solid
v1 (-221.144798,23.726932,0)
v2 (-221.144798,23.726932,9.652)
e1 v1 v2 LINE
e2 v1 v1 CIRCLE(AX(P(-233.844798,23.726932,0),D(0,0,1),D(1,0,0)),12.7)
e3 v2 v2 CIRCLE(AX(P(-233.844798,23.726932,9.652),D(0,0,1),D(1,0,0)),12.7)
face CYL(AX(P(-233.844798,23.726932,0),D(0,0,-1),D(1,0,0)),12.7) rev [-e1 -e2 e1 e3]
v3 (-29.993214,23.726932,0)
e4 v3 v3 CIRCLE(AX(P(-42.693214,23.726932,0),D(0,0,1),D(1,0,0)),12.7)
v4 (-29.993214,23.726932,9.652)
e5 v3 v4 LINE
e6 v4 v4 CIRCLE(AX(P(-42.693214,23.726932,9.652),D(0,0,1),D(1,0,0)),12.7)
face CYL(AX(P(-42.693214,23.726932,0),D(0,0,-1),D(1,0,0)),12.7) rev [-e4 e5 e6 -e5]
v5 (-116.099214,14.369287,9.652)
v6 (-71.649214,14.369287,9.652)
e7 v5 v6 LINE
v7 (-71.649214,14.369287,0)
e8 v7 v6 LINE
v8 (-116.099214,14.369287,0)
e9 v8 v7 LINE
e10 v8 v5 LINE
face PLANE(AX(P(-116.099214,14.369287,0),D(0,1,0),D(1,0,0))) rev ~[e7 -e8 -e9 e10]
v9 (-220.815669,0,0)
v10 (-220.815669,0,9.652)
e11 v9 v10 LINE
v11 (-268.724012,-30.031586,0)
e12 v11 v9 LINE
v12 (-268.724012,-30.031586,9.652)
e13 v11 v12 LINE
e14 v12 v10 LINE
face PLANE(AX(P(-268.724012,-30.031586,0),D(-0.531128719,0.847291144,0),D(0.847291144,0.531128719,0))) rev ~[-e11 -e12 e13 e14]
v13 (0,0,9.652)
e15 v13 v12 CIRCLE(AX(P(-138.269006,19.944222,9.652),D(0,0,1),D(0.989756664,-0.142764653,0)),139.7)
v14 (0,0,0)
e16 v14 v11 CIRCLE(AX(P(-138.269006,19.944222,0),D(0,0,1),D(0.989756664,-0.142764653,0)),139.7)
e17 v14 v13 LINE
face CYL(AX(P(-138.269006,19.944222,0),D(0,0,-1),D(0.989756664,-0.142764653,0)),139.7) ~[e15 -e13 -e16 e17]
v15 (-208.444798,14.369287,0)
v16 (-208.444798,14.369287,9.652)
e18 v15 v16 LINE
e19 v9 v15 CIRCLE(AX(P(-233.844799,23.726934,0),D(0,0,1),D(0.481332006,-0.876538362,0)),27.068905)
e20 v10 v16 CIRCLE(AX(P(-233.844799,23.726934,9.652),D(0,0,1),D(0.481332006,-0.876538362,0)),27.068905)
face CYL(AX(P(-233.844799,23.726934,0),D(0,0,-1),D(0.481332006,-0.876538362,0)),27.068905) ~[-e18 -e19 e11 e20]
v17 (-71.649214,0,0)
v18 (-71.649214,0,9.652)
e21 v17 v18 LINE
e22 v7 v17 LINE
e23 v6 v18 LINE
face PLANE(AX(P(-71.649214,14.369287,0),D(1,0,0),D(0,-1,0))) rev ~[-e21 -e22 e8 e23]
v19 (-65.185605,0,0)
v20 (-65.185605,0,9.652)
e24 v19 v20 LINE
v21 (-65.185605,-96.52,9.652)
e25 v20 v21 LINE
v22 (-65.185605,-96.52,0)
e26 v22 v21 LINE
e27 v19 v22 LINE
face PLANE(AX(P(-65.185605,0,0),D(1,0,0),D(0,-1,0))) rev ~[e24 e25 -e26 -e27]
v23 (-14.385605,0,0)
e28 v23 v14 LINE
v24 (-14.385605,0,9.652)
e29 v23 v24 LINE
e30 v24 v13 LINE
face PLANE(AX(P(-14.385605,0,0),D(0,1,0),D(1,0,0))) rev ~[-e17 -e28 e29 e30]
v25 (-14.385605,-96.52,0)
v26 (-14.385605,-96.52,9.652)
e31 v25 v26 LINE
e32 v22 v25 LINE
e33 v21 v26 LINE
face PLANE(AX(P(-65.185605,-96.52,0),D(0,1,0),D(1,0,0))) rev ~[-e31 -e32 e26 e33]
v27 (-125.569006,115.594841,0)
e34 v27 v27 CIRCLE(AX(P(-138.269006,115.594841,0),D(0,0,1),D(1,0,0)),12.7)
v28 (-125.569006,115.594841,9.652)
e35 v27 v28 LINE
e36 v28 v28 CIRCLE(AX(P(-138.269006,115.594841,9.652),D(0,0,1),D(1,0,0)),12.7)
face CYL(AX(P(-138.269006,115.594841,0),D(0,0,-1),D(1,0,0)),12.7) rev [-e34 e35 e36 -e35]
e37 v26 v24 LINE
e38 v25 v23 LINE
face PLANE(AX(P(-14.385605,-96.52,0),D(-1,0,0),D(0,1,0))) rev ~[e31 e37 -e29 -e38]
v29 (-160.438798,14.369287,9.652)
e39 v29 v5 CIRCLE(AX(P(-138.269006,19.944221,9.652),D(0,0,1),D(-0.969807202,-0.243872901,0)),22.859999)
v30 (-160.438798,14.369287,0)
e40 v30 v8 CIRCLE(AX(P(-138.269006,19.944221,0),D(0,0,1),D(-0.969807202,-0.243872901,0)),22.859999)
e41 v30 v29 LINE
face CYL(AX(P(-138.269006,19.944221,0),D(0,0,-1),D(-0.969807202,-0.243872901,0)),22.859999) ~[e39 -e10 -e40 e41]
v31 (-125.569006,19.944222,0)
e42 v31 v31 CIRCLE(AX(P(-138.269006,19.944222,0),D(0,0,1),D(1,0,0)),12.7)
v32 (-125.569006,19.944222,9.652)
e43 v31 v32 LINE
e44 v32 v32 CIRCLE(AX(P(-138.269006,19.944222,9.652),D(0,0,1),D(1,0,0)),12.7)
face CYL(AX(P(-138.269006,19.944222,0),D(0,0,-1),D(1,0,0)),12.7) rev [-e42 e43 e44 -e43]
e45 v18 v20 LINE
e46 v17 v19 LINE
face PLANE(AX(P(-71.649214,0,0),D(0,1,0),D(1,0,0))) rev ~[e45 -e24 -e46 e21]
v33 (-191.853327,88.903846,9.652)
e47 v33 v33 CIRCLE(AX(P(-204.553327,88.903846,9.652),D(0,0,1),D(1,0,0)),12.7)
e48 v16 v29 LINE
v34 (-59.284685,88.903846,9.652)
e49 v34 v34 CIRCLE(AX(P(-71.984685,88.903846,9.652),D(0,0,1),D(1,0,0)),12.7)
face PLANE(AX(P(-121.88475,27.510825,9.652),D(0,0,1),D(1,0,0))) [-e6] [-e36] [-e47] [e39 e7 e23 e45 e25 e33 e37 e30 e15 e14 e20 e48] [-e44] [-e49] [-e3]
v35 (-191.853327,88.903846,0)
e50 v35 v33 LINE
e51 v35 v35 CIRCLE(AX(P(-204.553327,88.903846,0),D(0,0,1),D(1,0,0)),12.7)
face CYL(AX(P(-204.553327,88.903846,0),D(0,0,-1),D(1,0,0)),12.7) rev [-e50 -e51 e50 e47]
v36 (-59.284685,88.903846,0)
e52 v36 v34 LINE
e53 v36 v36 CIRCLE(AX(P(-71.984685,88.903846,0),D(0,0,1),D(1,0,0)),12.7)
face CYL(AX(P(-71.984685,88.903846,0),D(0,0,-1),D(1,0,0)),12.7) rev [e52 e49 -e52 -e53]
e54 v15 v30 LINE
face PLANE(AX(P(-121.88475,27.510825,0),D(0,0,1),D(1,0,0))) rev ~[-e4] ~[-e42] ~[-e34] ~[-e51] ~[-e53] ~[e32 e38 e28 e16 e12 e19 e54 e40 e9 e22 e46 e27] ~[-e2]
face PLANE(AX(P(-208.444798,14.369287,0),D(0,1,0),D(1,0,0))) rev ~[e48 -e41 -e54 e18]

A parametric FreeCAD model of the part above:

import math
import FreeCAD as App
import Part
import Sketcher
from FreeCAD import Vector
Q = App.Units.Quantity

doc = App.newDocument("Part")
body = doc.addObject("PartDesign::Body", "Body")

sketch1 = doc.addObject("Sketcher::SketchObject", "Sketch")
body.addObject(sketch1)
sketch1.AttachmentSupport = (doc.XY_Plane, [""])
sketch1.MapMode = "FlatFace"
sketch1.addGeometry(Part.LineSegment(Vector(-71.649214, 0, 0), Vector(-65.185605, 0, 0)), False)
sketch1.addGeometry(Part.LineSegment(Vector(-65.185605, 0, 0), Vector(-65.185605, -96.52, 0)), False)
sketch1.addGeometry(Part.LineSegment(Vector(-65.185605, -96.52, 0), Vector(-14.385605, -96.52, 0)), False)
sketch1.addGeometry(Part.LineSegment(Vector(-14.385605, -96.52, 0), Vector(-14.385605, 0, 0)), False)
sketch1.addGeometry(Part.LineSegment(Vector(-14.385605, 0, 0), Vector(0, 0, 0)), False)
sketch1.addGeometry(Part.ArcOfCircle(Part.Circle(Vector(-138.269006, 19.944222, 0), Vector(0, 0, 1), 139.7), math.radians(-8.207857), math.radians(200.96126)), False)
sketch1.addGeometry(Part.LineSegment(Vector(-268.724012, -30.031586, 0), Vector(-220.815669, 0, 0)), False)
sketch1.addGeometry(Part.ArcOfCircle(Part.Circle(Vector(-233.844799, 23.726934, 0), Vector(0, 0, 1), 27.068905), math.radians(-61.227566), math.radians(-20.224366)), False)
sketch1.addGeometry(Part.LineSegment(Vector(-208.444798, 14.369287, 0), Vector(-160.438798, 14.369287, 0)), False)
sketch1.addGeometry(Part.ArcOfCircle(Part.Circle(Vector(-138.269006, 19.944221, 0), Vector(0, 0, 1), 22.859999), math.radians(-165.884765), math.radians(-14.115235)), False)
sketch1.addGeometry(Part.LineSegment(Vector(-116.099214, 14.369287, 0), Vector(-71.649214, 14.369287, 0)), False)
sketch1.addGeometry(Part.LineSegment(Vector(-71.649214, 14.369287, 0), Vector(-71.649214, 0, 0)), False)
sketch1.addGeometry(Part.Circle(Vector(-233.844798, 23.726932, 0), Vector(0, 0, 1), 12.7), False)
sketch1.addGeometry(Part.Circle(Vector(-138.269006, 19.944222, 0), Vector(0, 0, 1), 12.7), False)
sketch1.addGeometry(Part.Circle(Vector(-42.693214, 23.726932, 0), Vector(0, 0, 1), 12.7), False)
sketch1.addGeometry(Part.Circle(Vector(-204.553327, 88.903846, 0), Vector(0, 0, 1), 12.7), False)
sketch1.addGeometry(Part.Circle(Vector(-71.984685, 88.903846, 0), Vector(0, 0, 1), 12.7), False)
sketch1.addGeometry(Part.Circle(Vector(-138.269006, 115.594841, 0), Vector(0, 0, 1), 12.7), False)
sketch1.addConstraint(Sketcher.Constraint("Coincident", 0, 2, 1, 1))
sketch1.addConstraint(Sketcher.Constraint("Coincident", 1, 2, 2, 1))
sketch1.addConstraint(Sketcher.Constraint("Coincident", 2, 2, 3, 1))
sketch1.addConstraint(Sketcher.Constraint("Coincident", 3, 2, 4, 1))
sketch1.addConstraint(Sketcher.Constraint("Coincident", 4, 2, 5, 1))
sketch1.addConstraint(Sketcher.Constraint("Coincident", 5, 2, 6, 1))
sketch1.addConstraint(Sketcher.Constraint("Coincident", 6, 2, 7, 1))
sketch1.addConstraint(Sketcher.Constraint("Coincident", 7, 2, 8, 1))
sketch1.addConstraint(Sketcher.Constraint("Coincident", 8, 2, 9, 1))
sketch1.addConstraint(Sketcher.Constraint("Coincident", 9, 2, 10, 1))
sketch1.addConstraint(Sketcher.Constraint("Coincident", 10, 2, 11, 1))
sketch1.addConstraint(Sketcher.Constraint("Coincident", 11, 2, 0, 1))
sketch1.addConstraint(Sketcher.Constraint("Horizontal", 0))
sketch1.addConstraint(Sketcher.Constraint("Vertical", 1))
sketch1.addConstraint(Sketcher.Constraint("Horizontal", 2))
sketch1.addConstraint(Sketcher.Constraint("Vertical", 3))
sketch1.addConstraint(Sketcher.Constraint("Horizontal", 4))
sketch1.addConstraint(Sketcher.Constraint("Horizontal", 8))
sketch1.addConstraint(Sketcher.Constraint("Horizontal", 10))
sketch1.addConstraint(Sketcher.Constraint("Vertical", 11))
sketch1.addConstraint(Sketcher.Constraint("Coincident", 4, 2, -1, 1))
sketch1.addConstraint(Sketcher.Constraint("Coincident", 9, 3, 5, 3))
sketch1.addConstraint(Sketcher.Constraint("Coincident", 12, 3, 7, 3))
sketch1.addConstraint(Sketcher.Constraint("Coincident", 13, 3, 5, 3))
sketch1.addConstraint(Sketcher.Constraint("Equal", 12, 13))
sketch1.addConstraint(Sketcher.Constraint("Equal", 13, 14))
sketch1.addConstraint(Sketcher.Constraint("Equal", 14, 15))
sketch1.addConstraint(Sketcher.Constraint("Equal", 15, 16))
sketch1.addConstraint(Sketcher.Constraint("Equal", 16, 17))
sketch1.addConstraint(Sketcher.Constraint("PointOnObject", 0, 2, -1))
sketch1.addConstraint(Sketcher.Constraint("PointOnObject", 6, 2, -1))
sketch1.addConstraint(Sketcher.Constraint("Horizontal", 12, 3, 14, 3))
sketch1.addConstraint(Sketcher.Constraint("Horizontal", 15, 3, 16, 3))
sketch1.addConstraint(Sketcher.Constraint("Horizontal", 8, 2, 9, 2))
sketch1.addConstraint(Sketcher.Constraint("Vertical", 13, 3, 17, 3))
sketch1.addConstraint(Sketcher.Constraint("Diameter", 12, Q("1 in")))
sketch1.addConstraint(Sketcher.Constraint("Radius", 5, Q("5.5 in")))
sketch1.addConstraint(Sketcher.Constraint("Radius", 9, Q("0.9 in")))
sketch1.addConstraint(Sketcher.Constraint("DistanceX", 2, 1, 2, 2, Q("2 in")))
sketch1.addConstraint(Sketcher.Constraint("DistanceY", 1, 2, 1, 1, Q("3.8 in")))
sketch1.addConstraint(Sketcher.Constraint("DistanceX", 12, 3, 7, 2, Q("1 in")))
sketch1.addConstraint(Sketcher.Constraint("DistanceX", 8, 1, 8, 2, Q("1.89 in")))
sketch1.addConstraint(Sketcher.Constraint("DistanceX", 10, 1, 10, 2, Q("1.75 in")))
sketch1.addConstraint(Sketcher.Constraint("DistanceX", 10, 2, 14, 3, Q("1.14 in")))
sketch1.addConstraint(Sketcher.Constraint("Radius", 7, Q("27.068905 mm")))
sketch1.addConstraint(Sketcher.Constraint("DistanceX", 0, 1, 0, 2, Q("6.463609 mm")))
sketch1.addConstraint(Sketcher.Constraint("DistanceX", 7, 3, -1, 1, Q("233.844799 mm")))
sketch1.addConstraint(Sketcher.Constraint("DistanceX", 9, 3, 0, 2, Q("73.083401 mm")))
sketch1.addConstraint(Sketcher.Constraint("DistanceY", -1, 1, 17, 3, Q("115.594841 mm")))
sketch1.addConstraint(Sketcher.Constraint("DistanceX", 5, 2, -1, 1, Q("268.724012 mm")))
sketch1.addConstraint(Sketcher.Constraint("DistanceX", 12, 3, 15, 3, Q("29.291471 mm")))
sketch1.addConstraint(Sketcher.Constraint("DistanceX", 16, 3, 14, 3, Q("29.291471 mm")))
sketch1.addConstraint(Sketcher.Constraint("DistanceY", 5, 2, 15, 3, Q("118.935432 mm")))
pad1 = doc.addObject("PartDesign::Pad", "Pad")
body.addObject(pad1)
pad1.Profile = sketch1
pad1.Length = Q("0.38 in")

doc.recompute()
